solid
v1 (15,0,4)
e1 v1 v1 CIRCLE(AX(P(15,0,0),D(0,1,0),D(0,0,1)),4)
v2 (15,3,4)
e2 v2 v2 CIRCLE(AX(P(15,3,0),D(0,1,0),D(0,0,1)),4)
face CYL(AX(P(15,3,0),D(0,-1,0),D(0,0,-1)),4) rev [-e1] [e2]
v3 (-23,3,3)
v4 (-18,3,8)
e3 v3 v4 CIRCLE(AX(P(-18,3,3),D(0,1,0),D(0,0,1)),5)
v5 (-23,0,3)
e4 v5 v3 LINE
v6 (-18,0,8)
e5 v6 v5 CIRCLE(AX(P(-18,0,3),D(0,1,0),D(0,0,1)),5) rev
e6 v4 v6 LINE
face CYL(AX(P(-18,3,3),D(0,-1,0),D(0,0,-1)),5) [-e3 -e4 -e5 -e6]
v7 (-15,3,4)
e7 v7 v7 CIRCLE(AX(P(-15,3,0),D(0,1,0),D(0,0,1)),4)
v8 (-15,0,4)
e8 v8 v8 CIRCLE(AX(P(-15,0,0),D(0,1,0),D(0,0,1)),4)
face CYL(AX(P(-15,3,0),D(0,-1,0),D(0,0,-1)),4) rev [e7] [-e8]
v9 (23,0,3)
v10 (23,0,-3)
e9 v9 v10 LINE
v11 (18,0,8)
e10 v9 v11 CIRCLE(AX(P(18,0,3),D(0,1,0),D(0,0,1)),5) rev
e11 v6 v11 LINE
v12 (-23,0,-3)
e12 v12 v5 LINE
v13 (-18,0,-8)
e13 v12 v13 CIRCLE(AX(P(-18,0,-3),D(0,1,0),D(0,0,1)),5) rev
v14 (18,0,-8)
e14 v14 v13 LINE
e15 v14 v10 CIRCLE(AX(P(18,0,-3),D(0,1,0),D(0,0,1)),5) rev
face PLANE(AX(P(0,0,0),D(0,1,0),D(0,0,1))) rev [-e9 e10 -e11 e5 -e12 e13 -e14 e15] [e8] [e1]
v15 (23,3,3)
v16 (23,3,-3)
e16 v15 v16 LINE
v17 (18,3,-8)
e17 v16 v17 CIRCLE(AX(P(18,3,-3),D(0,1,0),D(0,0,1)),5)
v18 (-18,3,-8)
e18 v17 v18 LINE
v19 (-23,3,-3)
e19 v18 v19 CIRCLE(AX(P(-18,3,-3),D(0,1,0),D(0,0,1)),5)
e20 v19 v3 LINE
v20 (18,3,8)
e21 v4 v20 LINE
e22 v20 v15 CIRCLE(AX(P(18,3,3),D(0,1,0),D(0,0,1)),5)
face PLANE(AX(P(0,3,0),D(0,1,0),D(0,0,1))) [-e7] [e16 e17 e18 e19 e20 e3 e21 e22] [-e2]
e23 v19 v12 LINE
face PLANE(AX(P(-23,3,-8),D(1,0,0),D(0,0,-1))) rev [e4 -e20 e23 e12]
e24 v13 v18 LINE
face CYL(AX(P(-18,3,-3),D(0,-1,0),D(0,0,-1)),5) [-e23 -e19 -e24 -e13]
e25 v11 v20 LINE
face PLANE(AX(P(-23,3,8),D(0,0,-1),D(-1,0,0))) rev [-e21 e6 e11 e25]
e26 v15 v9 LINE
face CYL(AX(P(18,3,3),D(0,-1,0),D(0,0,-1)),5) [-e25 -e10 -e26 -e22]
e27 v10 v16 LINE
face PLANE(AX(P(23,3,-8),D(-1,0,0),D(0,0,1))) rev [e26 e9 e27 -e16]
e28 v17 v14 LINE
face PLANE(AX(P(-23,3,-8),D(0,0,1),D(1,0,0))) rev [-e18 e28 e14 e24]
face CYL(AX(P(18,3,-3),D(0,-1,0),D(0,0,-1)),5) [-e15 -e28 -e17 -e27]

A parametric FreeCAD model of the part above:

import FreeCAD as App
import Part
import Sketcher


def edges_at(feature, points):
    """Names of the edges that pass closest to the given points."""
    edges = feature.Shape.Edges
    near = lambda p: min(range(len(edges)), key=lambda i: edges[i].distToShape(Part.Vertex(*p))[0])
    return sorted({f"Edge{near(p) + 1}" for p in points})


def add_polygon(sketch, points):
    """Adds a closed chain of lines whose ends are joined by coincident constraints."""
    first, n = sketch.GeometryCount, len(points)
    for a, b in zip(points, points[1:] + points[:1]):
        sketch.addGeometry(Part.LineSegment(App.Vector(*a, 0), App.Vector(*b, 0)), False)
    for i in range(n):
        sketch.addConstraint(Sketcher.Constraint("Coincident", first + i, 2, first + (i + 1) % n, 1))

doc = App.newDocument("Part")
body = doc.addObject("PartDesign::Body", "Body")

# Sketch on XZ plane
sketch1 = doc.addObject("Sketcher::SketchObject", "Sketch")
body.addObject(sketch1)
sketch1.AttachmentSupport = (doc.XZ_Plane, [""])
sketch1.MapMode = "FlatFace"
add_polygon(sketch1, [(-23, -8), (-23, 8), (23, 8), (23, -8)])  # lines 0-3
sketch1.addGeometry(Part.Circle(App.Vector(-15, 0, 0), App.Vector(0, 0, 1), 4), False)  # 4
sketch1.addGeometry(Part.Circle(App.Vector(15, 0, 0), App.Vector(0, 0, 1), 4), False)  # 5
sketch1.addConstraint([
    Sketcher.Constraint("Vertical", 0),
    Sketcher.Constraint("Horizontal", 1),
    Sketcher.Constraint("Vertical", 2),
    Sketcher.Constraint("Horizontal", 3),
    Sketcher.Constraint("Equal", 4, 5),
    Sketcher.Constraint("Symmetric", 4, 3, 5, 3, -1, 1),
    Sketcher.Constraint("Symmetric", 0, 2, 2, 2, -1, 1),
    Sketcher.Constraint("PointOnObject", 4, 3, -1),
    Sketcher.Constraint("Diameter", 4, 8.0),
    Sketcher.Constraint("DistanceX", 1, 1, 1, 2, 46.0),
    Sketcher.Constraint("DistanceY", 0, 1, 0, 2, 16.0),
    Sketcher.Constraint("DistanceX", 4, 3, -1, 1, 15.0),
])
pad1 = doc.addObject("PartDesign::Pad", "Pad")
body.addObject(pad1)
pad1.Profile = sketch1
pad1.Length = 3
pad1.Reversed = True
doc.recompute()

fillet = doc.addObject("PartDesign::Fillet", "Fillet")
body.addObject(fillet)
fillet.Base = (pad1, edges_at(pad1, [
    (23, 1.5, 8),
    (-23, 1.5, 8),
    (-23, 1.5, -8),
    (23, 1.5, -8),
]))
fillet.Radius = 5

doc.recompute()
